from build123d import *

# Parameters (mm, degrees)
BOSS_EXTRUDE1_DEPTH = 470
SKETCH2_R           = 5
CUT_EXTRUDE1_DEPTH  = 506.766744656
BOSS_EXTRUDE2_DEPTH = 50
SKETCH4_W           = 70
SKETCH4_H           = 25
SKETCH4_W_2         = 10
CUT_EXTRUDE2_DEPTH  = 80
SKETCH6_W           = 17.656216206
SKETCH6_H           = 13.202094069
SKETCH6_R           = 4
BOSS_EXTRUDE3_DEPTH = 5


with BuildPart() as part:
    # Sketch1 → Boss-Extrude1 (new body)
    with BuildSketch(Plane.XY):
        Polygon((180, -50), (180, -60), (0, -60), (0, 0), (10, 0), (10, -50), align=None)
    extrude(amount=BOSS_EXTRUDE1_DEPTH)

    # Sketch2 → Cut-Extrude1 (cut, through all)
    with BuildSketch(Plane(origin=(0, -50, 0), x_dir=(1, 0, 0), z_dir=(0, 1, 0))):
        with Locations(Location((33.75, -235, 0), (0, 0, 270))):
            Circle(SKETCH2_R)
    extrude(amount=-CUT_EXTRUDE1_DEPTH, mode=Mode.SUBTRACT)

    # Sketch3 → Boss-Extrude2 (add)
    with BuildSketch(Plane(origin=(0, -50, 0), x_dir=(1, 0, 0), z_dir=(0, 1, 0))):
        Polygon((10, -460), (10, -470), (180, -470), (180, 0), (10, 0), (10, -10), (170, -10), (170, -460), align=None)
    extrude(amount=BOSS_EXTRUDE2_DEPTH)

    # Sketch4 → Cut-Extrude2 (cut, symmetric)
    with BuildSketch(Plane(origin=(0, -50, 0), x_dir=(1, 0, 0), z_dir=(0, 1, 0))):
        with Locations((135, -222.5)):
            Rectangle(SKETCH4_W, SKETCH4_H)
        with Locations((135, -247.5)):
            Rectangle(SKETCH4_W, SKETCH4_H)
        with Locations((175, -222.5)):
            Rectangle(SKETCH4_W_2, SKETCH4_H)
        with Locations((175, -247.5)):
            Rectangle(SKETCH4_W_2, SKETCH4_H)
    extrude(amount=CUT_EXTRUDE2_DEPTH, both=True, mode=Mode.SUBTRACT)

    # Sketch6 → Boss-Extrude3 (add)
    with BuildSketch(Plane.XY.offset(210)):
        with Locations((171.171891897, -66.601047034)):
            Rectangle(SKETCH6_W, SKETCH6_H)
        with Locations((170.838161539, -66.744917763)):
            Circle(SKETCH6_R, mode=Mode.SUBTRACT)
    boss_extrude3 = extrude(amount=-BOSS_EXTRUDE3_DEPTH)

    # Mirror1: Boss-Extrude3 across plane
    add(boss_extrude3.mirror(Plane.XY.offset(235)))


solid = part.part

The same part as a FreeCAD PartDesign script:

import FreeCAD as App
import Part
import Sketcher

doc = App.newDocument("Part")
params = doc.addObject("Spreadsheet::Sheet", "Params")
for row, (alias, value) in enumerate([
    ("sketch1_width", "170 mm"),
    ("sketch1_width2", "10 mm"),
    ("sketch1_height", "50 mm"),
    ("pad1_length", "470 mm"),
    ("sketch2_diameter", "10 mm"),
    ("sketch3_width", "170 mm"),
    ("sketch3_width2", "160 mm"),
    ("sketch3_height", "10 mm"),
    ("sketch3_height2", "470 mm"),
    ("pad2_length", "50 mm"),
    ("sketch4_width", "80 mm"),
    ("sketch4_height", "50 mm"),
    ("pocket2_length", "160 mm"),
    ("sketch5_diameter", "8 mm"),
    ("pad3_length", "5 mm"),
], start=1):
    params.set(f"A{row}", alias)
    params.set(f"B{row}", "=" + value)
    params.setAlias(f"B{row}", alias)

body = doc.addObject("PartDesign::Body", "Body")

# Sketch on XY plane
sketch1 = body.newObject("Sketcher::SketchObject", "Sketch")
sketch1.AttachmentSupport = (doc.getObject("XY_Plane"), [""])
sketch1.MapMode = "FlatFace"
sketch1.addGeometry([
    Part.LineSegment(App.Vector(180, -60, 0), App.Vector(180, -50, 0)),  # 0
    Part.LineSegment(App.Vector(180, -50, 0), App.Vector(10, -50, 0)),  # 1
    Part.LineSegment(App.Vector(10, -50, 0), App.Vector(10, 0, 0)),  # 2
    Part.LineSegment(App.Vector(10, 0, 0), App.Vector(0, 0, 0)),  # 3
    Part.LineSegment(App.Vector(0, 0, 0), App.Vector(0, -60, 0)),  # 4
    Part.LineSegment(App.Vector(0, -60, 0), App.Vector(180, -60, 0)),  # 5
], False)
sketch1.addConstraint([
    Sketcher.Constraint("Coincident", 0, 2, 1, 1),
    Sketcher.Constraint("Coincident", 1, 2, 2, 1),
    Sketcher.Constraint("Coincident", 2, 2, 3, 1),
    Sketcher.Constraint("Coincident", 3, 2, 4, 1),
    Sketcher.Constraint("Coincident", 4, 2, 5, 1),
    Sketcher.Constraint("Coincident", 5, 2, 0, 1),
    Sketcher.Constraint("Vertical", 0),
    Sketcher.Constraint("Horizontal", 1),
    Sketcher.Constraint("Vertical", 2),
    Sketcher.Constraint("Horizontal", 3),
    Sketcher.Constraint("Vertical", 4),
    Sketcher.Constraint("Horizontal", 5),
    Sketcher.Constraint("Coincident", 3, 2, -1, 1),
    Sketcher.Constraint("Equal", 3, 0),
    Sketcher.Constraint("DistanceX", 1, 2, 1, 1, 170.0),
    Sketcher.Constraint("DistanceX", 3, 2, 3, 1, 10.0),
    Sketcher.Constraint("DistanceY", 2, 1, 2, 2, 50.0),
])
sketch1.setExpression("Constraints[14]", "Params.sketch1_width")
sketch1.setExpression("Constraints[15]", "Params.sketch1_width2")
sketch1.setExpression("Constraints[16]", "Params.sketch1_height")
pad1 = body.newObject("PartDesign::Pad", "Pad")
pad1.Profile = sketch1
pad1.setExpression("Length", "Params.pad1_length")

# Sketch on XZ plane
sketch2 = body.newObject("Sketcher::SketchObject", "Sketch001")
sketch2.AttachmentSupport = (doc.getObject("XZ_Plane"), [""])
sketch2.MapMode = "FlatFace"
sketch2.AttachmentOffset = App.Placement(App.Vector(0, 0, 50), App.Rotation())
sketch2.addGeometry(Part.Circle(App.Vector(34, 235, 0), App.Vector(0, 0, 1), 5), False)
sketch2.addConstraint([
    Sketcher.Constraint("Diameter", 0, 10.0),
    Sketcher.Constraint("DistanceY", -1, 1, 0, 3, 235.0),
    Sketcher.Constraint("DistanceX", -1, 1, 0, 3, 33.75),
])
sketch2.setExpression("Constraints[0]", "Params.sketch2_diameter")
pocket1 = body.newObject("PartDesign::Pocket", "Pocket")
pocket1.Profile = sketch2
pocket1.Type = "ThroughAll"
pocket1.Reversed = True

# Sketch on XZ plane
sketch3 = body.newObject("Sketcher::SketchObject", "Sketch002")
sketch3.AttachmentSupport = (doc.getObject("XZ_Plane"), [""])
sketch3.MapMode = "FlatFace"
sketch3.AttachmentOffset = App.Placement(App.Vector(0, 0, 50), App.Rotation())
sketch3.addGeometry([
    Part.LineSegment(App.Vector(10, 460, 0), App.Vector(10, 470, 0)),  # 0
    Part.LineSegment(App.Vector(10, 470, 0), App.Vector(180, 470, 0)),  # 1
    Part.LineSegment(App.Vector(180, 470, 0), App.Vector(180, 0, 0)),  # 2
    Part.LineSegment(App.Vector(180, 0, 0), App.Vector(10, 0, 0)),  # 3
    Part.LineSegment(App.Vector(10, 0, 0), App.Vector(10, 10, 0)),  # 4
    Part.LineSegment(App.Vector(10, 10, 0), App.Vector(170, 10, 0)),  # 5
    Part.LineSegment(App.Vector(170, 10, 0), App.Vector(170, 460, 0)),  # 6
    Part.LineSegment(App.Vector(170, 460, 0), App.Vector(10, 460, 0)),  # 7
], False)
sketch3.addConstraint([
    Sketcher.Constraint("Coincident", 0, 2, 1, 1),
    Sketcher.Constraint("Coincident", 1, 2, 2, 1),
    Sketcher.Constraint("Coincident", 2, 2, 3, 1),
    Sketcher.Constraint("Coincident", 3, 2, 4, 1),
    Sketcher.Constraint("Coincident", 4, 2, 5, 1),
    Sketcher.Constraint("Coincident", 5, 2, 6, 1),
    Sketcher.Constraint("Coincident", 6, 2, 7, 1),
    Sketcher.Constraint("Coincident", 7, 2, 0, 1),
    Sketcher.Constraint("Vertical", 0),
    Sketcher.Constraint("Horizontal", 1),
    Sketcher.Constraint("Vertical", 2),
    Sketcher.Constraint("Horizontal", 3),
    Sketcher.Constraint("Vertical", 4),
    Sketcher.Constraint("Horizontal", 5),
    Sketcher.Constraint("Vertical", 6),
    Sketcher.Constraint("Horizontal", 7),
    Sketcher.Constraint("PointOnObject", 2, 2, -1),
    Sketcher.Constraint("Vertical", 0, 2, 3, 2),
    Sketcher.Constraint("Equal", 0, 4),
    Sketcher.Constraint("DistanceX", 1, 1, 1, 2, 170.0),
    Sketcher.Constraint("DistanceX", 5, 1, 5, 2, 160.0),
    Sketcher.Constraint("DistanceY", 0, 1, 0, 2, 10.0),
    Sketcher.Constraint("DistanceY", 2, 2, 2, 1, 470.0),
    Sketcher.Constraint("DistanceX", -1, 1, 0, 2, 10.0),
])
sketch3.setExpression("Constraints[19]", "Params.sketch3_width")
sketch3.setExpression("Constraints[20]", "Params.sketch3_width2")
sketch3.setExpression("Constraints[21]", "Params.sketch3_height")
sketch3.setExpression("Constraints[22]", "Params.sketch3_height2")
pad2 = body.newObject("PartDesign::Pad", "Pad001")
pad2.Profile = sketch3
pad2.setExpression("Length", "Params.pad2_length")
pad2.Reversed = True

# Sketch on XZ plane
sketch4 = body.newObject("Sketcher::SketchObject", "Sketch003")
sketch4.AttachmentSupport = (doc.getObject("XZ_Plane"), [""])
sketch4.MapMode = "FlatFace"
sketch4.AttachmentOffset = App.Placement(App.Vector(0, 0, 50), App.Rotation())
sketch4.addGeometry([
    Part.LineSegment(App.Vector(100, 210, 0), App.Vector(100, 260, 0)),
    Part.LineSegment(App.Vector(100, 260, 0), App.Vector(180, 260, 0)),
    Part.LineSegment(App.Vector(180, 260, 0), App.Vector(180, 210, 0)),
    Part.LineSegment(App.Vector(180, 210, 0), App.Vector(100, 210, 0)),
], False)
sketch4.addConstraint([
    Sketcher.Constraint("Coincident", 0, 2, 1, 1),
    Sketcher.Constraint("Coincident", 1, 2, 2, 1),
    Sketcher.Constraint("Coincident", 2, 2, 3, 1),
    Sketcher.Constraint("Coincident", 3, 2, 0, 1),
    Sketcher.Constraint("Vertical", 0),
    Sketcher.Constraint("Horizontal", 1),
    Sketcher.Constraint("Vertical", 2),
    Sketcher.Constraint("Horizontal", 3),
    Sketcher.Constraint("DistanceX", 1, 1, 1, 2, 80.0),
    Sketcher.Constraint("DistanceY", 0, 1, 0, 2, 50.0),
    Sketcher.Constraint("DistanceX", -1, 1, 0, 2, 100.0),
    Sketcher.Constraint("DistanceY", -1, 1, 0, 2, 260.0),
])
sketch4.setExpression("Constraints[8]", "Params.sketch4_width")
sketch4.setExpression("Constraints[9]", "Params.sketch4_height")
pocket2 = body.newObject("PartDesign::Pocket", "Pocket001")
pocket2.Profile = sketch4
pocket2.setExpression("Length", "Params.pocket2_length")
pocket2.Midplane = True

# Sketch on XY plane
sketch5 = body.newObject("Sketcher::SketchObject", "Sketch004")
sketch5.AttachmentSupport = (doc.getObject("XY_Plane"), [""])
sketch5.MapMode = "FlatFace"
sketch5.AttachmentOffset = App.Placement(App.Vector(0, 0, 210), App.Rotation())
sketch5.addGeometry([
    Part.LineSegment(App.Vector(162.3, -60, 0), App.Vector(162.3, -73.2, 0)),  # 0
    Part.LineSegment(App.Vector(162.3, -73.2, 0), App.Vector(180, -73.2, 0)),  # 1
    Part.LineSegment(App.Vector(180, -73.2, 0), App.Vector(180, -60, 0)),  # 2
    Part.LineSegment(App.Vector(180, -60, 0), App.Vector(162.3, -60, 0)),  # 3
    Part.Circle(App.Vector(170.8, -66.7, 0), App.Vector(0, 0, 1), 4),  # 4
], False)
sketch5.addConstraint([
    Sketcher.Constraint("Coincident", 0, 2, 1, 1),
    Sketcher.Constraint("Coincident", 1, 2, 2, 1),
    Sketcher.Constraint("Coincident", 2, 2, 3, 1),
    Sketcher.Constraint("Coincident", 3, 2, 0, 1),
    Sketcher.Constraint("Vertical", 0),
    Sketcher.Constraint("Horizontal", 1),
    Sketcher.Constraint("Vertical", 2),
    Sketcher.Constraint("Horizontal", 3),
    Sketcher.Constraint("Diameter", 4, 8.0),
    Sketcher.Constraint("DistanceX", -1, 1, 1, 2, 180.0),
    Sketcher.Constraint("DistanceY", 2, 2, -1, 1, 60.0),
    Sketcher.Constraint("DistanceX", 1, 1, 1, 2, 17.656216),
    Sketcher.Constraint("DistanceY", 0, 2, 0, 1, 13.202094),
    Sketcher.Constraint("DistanceX", -1, 1, 4, 3, 170.838162),
    Sketcher.Constraint("DistanceY", 4, 3, -1, 1, 66.744918),
])
sketch5.setExpression("Constraints[8]", "Params.sketch5_diameter")
pad3 = body.newObject("PartDesign::Pad", "Pad002")
pad3.Profile = sketch5
pad3.setExpression("Length", "Params.pad3_length")
pad3.Reversed = True
doc.recompute()

datumplane = body.newObject("PartDesign::Plane", "DatumPlane")
datumplane.AttachmentSupport = (doc.getObject("XY_Plane"), [""])
datumplane.MapMode = "FlatFace"
datumplane.AttachmentOffset = App.Placement(App.Vector(0, 0, 235), App.Rotation())
mirrored = body.newObject("PartDesign::Mirrored", "Mirrored")
mirrored.Originals = [pad3]
mirrored.MirrorPlane = (datumplane, [""])
body.Tip = mirrored

doc.recompute()
